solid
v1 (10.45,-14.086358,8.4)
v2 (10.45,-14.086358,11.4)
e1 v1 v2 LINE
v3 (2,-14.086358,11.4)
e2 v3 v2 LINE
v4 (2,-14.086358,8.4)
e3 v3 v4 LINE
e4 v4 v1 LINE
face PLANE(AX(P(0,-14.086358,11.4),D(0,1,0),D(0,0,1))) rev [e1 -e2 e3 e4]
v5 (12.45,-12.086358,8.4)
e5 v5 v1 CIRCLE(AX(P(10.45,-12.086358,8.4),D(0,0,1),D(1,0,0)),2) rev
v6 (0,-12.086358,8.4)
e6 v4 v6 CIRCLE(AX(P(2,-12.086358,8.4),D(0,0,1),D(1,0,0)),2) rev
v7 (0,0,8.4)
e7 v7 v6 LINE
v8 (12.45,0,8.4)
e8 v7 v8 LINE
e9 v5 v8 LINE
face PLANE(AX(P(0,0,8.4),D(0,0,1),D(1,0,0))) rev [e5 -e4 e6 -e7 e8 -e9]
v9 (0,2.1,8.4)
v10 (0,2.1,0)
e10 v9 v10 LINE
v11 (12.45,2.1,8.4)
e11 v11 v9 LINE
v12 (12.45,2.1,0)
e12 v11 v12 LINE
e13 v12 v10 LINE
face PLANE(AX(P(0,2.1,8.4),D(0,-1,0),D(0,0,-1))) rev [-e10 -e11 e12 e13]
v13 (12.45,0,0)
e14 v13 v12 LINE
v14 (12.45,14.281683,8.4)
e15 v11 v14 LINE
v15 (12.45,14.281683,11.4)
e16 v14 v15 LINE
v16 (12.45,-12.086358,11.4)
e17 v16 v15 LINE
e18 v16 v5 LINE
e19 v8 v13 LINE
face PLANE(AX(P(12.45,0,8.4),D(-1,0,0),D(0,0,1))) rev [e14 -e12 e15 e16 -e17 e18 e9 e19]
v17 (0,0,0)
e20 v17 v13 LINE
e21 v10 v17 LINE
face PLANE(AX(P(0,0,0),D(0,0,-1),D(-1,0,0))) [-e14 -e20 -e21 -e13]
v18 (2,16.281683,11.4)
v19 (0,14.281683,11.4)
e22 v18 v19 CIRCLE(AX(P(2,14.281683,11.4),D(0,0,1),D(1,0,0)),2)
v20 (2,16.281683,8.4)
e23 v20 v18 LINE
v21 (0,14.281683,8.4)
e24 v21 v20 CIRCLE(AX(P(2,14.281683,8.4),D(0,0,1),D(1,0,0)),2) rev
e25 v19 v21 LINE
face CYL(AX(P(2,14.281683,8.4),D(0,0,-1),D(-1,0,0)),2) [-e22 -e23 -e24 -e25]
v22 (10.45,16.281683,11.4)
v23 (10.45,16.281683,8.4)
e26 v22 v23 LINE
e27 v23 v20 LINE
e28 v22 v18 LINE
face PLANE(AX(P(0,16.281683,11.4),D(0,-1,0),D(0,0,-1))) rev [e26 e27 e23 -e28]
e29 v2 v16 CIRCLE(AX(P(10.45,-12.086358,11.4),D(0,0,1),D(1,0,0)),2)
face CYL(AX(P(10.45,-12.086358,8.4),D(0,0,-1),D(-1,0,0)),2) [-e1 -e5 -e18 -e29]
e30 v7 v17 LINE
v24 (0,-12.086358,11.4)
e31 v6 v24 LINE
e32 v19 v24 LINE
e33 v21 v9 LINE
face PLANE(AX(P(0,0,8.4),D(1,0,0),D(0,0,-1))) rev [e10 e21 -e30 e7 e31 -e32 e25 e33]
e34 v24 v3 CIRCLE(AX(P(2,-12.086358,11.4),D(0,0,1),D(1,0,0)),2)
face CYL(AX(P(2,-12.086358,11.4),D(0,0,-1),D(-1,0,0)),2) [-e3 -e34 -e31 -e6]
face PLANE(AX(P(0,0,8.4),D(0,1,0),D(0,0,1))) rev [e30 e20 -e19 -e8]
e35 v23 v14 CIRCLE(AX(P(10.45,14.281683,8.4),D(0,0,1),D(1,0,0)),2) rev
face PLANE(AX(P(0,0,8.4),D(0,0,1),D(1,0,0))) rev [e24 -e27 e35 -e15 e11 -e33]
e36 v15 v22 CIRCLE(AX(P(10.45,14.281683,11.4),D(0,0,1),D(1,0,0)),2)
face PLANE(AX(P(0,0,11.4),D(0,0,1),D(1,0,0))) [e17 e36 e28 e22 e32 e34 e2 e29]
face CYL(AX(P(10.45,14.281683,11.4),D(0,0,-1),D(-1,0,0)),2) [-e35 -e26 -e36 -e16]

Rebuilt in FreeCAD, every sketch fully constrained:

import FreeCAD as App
import Part
import Sketcher


def edges_at(feature, points):
    """Names of the edges that pass closest to the given points."""
    edges = feature.Shape.Edges
    near = lambda p: min(range(len(edges)), key=lambda i: edges[i].distToShape(Part.Vertex(*p))[0])
    return sorted({f"Edge{near(p) + 1}" for p in points})

doc = App.newDocument("Part")
body = doc.addObject("PartDesign::Body", "Body")

# Sketch on XY plane
sketch1 = body.newObject("Sketcher::SketchObject", "Sketch")
sketch1.AttachmentSupport = (doc.getObject("XY_Plane"), [""])
sketch1.MapMode = "FlatFace"
sketch1.addGeometry(Part.LineSegment(App.Vector(0, 2.1, 0), App.Vector(0, 0, 0)), False)
sketch1.addGeometry(Part.LineSegment(App.Vector(0, 0, 0), App.Vector(12.4, 0, 0)), False)
sketch1.addGeometry(Part.LineSegment(App.Vector(12.4, 0, 0), App.Vector(12.4, 2.1, 0)), False)
sketch1.addGeometry(Part.LineSegment(App.Vector(12.4, 2.1, 0), App.Vector(0, 2.1, 0)), False)
sketch1.addConstraint(Sketcher.Constraint("Coincident", 0, 2, 1, 1))
sketch1.addConstraint(Sketcher.Constraint("Coincident", 1, 2, 2, 1))
sketch1.addConstraint(Sketcher.Constraint("Coincident", 2, 2, 3, 1))
sketch1.addConstraint(Sketcher.Constraint("Coincident", 3, 2, 0, 1))
sketch1.addConstraint(Sketcher.Constraint("Vertical", 0))
sketch1.addConstraint(Sketcher.Constraint("Horizontal", 1))
sketch1.addConstraint(Sketcher.Constraint("Vertical", 2))
sketch1.addConstraint(Sketcher.Constraint("Horizontal", 3))
sketch1.addConstraint(Sketcher.Constraint("Coincident", 0, 2, -1, 1))
sketch1.addConstraint(Sketcher.Constraint("DistanceY", 0, 2, 0, 1, 2.1))
sketch1.addConstraint(Sketcher.Constraint("DistanceX", 1, 1, 1, 2, 12.45))
pad1 = body.newObject("PartDesign::Pad", "Pad")
pad1.Profile = sketch1
pad1.Length = 8.4

# Sketch on XY plane
sketch2 = body.newObject("Sketcher::SketchObject", "Sketch001")
sketch2.AttachmentSupport = (doc.getObject("XY_Plane"), [""])
sketch2.MapMode = "FlatFace"
sketch2.AttachmentOffset = App.Placement(App.Vector(0, 0, 8.4), App.Rotation())
sketch2.addGeometry(Part.LineSegment(App.Vector(0, 16, 0), App.Vector(0, -14, 0)), False)
sketch2.addGeometry(Part.LineSegment(App.Vector(0, -14, 0), App.Vector(12, -14, 0)), False)
sketch2.addGeometry(Part.LineSegment(App.Vector(12, -14, 0), App.Vector(12, 16, 0)), False)
sketch2.addGeometry(Part.LineSegment(App.Vector(12, 16, 0), App.Vector(0, 16, 0)), False)
sketch2.addConstraint(Sketcher.Constraint("Coincident", 0, 2, 1, 1))
sketch2.addConstraint(Sketcher.Constraint("Coincident", 1, 2, 2, 1))
sketch2.addConstraint(Sketcher.Constraint("Coincident", 2, 2, 3, 1))
sketch2.addConstraint(Sketcher.Constraint("Coincident", 3, 2, 0, 1))
sketch2.addConstraint(Sketcher.Constraint("Vertical", 0))
sketch2.addConstraint(Sketcher.Constraint("Horizontal", 1))
sketch2.addConstraint(Sketcher.Constraint("Vertical", 2))
sketch2.addConstraint(Sketcher.Constraint("Horizontal", 3))
sketch2.addConstraint(Sketcher.Constraint("PointOnObject", 0, 2, -2))
sketch2.addConstraint(Sketcher.Constraint("DistanceX", 1, 1, 1, 2, 12.45))
sketch2.addConstraint(Sketcher.Constraint("DistanceY", 0, 2, 0, 1, 30.368041))
sketch2.addConstraint(Sketcher.Constraint("DistanceY", 0, 2, -1, 1, 14.086358))
pad2 = body.newObject("PartDesign::Pad", "Pad001")
pad2.Profile = sketch2
pad2.Length = 3
doc.recompute()

fillet = body.newObject("PartDesign::Fillet", "Fillet")
fillet.Base = (pad2, edges_at(pad2, [
    (12.45, -14.086, 9.9),
    (12.45, 16.282, 9.9),
    (0, 16.282, 9.9),
    (0, -14.086, 9.9),
]))
fillet.Radius = 2

doc.recompute()
